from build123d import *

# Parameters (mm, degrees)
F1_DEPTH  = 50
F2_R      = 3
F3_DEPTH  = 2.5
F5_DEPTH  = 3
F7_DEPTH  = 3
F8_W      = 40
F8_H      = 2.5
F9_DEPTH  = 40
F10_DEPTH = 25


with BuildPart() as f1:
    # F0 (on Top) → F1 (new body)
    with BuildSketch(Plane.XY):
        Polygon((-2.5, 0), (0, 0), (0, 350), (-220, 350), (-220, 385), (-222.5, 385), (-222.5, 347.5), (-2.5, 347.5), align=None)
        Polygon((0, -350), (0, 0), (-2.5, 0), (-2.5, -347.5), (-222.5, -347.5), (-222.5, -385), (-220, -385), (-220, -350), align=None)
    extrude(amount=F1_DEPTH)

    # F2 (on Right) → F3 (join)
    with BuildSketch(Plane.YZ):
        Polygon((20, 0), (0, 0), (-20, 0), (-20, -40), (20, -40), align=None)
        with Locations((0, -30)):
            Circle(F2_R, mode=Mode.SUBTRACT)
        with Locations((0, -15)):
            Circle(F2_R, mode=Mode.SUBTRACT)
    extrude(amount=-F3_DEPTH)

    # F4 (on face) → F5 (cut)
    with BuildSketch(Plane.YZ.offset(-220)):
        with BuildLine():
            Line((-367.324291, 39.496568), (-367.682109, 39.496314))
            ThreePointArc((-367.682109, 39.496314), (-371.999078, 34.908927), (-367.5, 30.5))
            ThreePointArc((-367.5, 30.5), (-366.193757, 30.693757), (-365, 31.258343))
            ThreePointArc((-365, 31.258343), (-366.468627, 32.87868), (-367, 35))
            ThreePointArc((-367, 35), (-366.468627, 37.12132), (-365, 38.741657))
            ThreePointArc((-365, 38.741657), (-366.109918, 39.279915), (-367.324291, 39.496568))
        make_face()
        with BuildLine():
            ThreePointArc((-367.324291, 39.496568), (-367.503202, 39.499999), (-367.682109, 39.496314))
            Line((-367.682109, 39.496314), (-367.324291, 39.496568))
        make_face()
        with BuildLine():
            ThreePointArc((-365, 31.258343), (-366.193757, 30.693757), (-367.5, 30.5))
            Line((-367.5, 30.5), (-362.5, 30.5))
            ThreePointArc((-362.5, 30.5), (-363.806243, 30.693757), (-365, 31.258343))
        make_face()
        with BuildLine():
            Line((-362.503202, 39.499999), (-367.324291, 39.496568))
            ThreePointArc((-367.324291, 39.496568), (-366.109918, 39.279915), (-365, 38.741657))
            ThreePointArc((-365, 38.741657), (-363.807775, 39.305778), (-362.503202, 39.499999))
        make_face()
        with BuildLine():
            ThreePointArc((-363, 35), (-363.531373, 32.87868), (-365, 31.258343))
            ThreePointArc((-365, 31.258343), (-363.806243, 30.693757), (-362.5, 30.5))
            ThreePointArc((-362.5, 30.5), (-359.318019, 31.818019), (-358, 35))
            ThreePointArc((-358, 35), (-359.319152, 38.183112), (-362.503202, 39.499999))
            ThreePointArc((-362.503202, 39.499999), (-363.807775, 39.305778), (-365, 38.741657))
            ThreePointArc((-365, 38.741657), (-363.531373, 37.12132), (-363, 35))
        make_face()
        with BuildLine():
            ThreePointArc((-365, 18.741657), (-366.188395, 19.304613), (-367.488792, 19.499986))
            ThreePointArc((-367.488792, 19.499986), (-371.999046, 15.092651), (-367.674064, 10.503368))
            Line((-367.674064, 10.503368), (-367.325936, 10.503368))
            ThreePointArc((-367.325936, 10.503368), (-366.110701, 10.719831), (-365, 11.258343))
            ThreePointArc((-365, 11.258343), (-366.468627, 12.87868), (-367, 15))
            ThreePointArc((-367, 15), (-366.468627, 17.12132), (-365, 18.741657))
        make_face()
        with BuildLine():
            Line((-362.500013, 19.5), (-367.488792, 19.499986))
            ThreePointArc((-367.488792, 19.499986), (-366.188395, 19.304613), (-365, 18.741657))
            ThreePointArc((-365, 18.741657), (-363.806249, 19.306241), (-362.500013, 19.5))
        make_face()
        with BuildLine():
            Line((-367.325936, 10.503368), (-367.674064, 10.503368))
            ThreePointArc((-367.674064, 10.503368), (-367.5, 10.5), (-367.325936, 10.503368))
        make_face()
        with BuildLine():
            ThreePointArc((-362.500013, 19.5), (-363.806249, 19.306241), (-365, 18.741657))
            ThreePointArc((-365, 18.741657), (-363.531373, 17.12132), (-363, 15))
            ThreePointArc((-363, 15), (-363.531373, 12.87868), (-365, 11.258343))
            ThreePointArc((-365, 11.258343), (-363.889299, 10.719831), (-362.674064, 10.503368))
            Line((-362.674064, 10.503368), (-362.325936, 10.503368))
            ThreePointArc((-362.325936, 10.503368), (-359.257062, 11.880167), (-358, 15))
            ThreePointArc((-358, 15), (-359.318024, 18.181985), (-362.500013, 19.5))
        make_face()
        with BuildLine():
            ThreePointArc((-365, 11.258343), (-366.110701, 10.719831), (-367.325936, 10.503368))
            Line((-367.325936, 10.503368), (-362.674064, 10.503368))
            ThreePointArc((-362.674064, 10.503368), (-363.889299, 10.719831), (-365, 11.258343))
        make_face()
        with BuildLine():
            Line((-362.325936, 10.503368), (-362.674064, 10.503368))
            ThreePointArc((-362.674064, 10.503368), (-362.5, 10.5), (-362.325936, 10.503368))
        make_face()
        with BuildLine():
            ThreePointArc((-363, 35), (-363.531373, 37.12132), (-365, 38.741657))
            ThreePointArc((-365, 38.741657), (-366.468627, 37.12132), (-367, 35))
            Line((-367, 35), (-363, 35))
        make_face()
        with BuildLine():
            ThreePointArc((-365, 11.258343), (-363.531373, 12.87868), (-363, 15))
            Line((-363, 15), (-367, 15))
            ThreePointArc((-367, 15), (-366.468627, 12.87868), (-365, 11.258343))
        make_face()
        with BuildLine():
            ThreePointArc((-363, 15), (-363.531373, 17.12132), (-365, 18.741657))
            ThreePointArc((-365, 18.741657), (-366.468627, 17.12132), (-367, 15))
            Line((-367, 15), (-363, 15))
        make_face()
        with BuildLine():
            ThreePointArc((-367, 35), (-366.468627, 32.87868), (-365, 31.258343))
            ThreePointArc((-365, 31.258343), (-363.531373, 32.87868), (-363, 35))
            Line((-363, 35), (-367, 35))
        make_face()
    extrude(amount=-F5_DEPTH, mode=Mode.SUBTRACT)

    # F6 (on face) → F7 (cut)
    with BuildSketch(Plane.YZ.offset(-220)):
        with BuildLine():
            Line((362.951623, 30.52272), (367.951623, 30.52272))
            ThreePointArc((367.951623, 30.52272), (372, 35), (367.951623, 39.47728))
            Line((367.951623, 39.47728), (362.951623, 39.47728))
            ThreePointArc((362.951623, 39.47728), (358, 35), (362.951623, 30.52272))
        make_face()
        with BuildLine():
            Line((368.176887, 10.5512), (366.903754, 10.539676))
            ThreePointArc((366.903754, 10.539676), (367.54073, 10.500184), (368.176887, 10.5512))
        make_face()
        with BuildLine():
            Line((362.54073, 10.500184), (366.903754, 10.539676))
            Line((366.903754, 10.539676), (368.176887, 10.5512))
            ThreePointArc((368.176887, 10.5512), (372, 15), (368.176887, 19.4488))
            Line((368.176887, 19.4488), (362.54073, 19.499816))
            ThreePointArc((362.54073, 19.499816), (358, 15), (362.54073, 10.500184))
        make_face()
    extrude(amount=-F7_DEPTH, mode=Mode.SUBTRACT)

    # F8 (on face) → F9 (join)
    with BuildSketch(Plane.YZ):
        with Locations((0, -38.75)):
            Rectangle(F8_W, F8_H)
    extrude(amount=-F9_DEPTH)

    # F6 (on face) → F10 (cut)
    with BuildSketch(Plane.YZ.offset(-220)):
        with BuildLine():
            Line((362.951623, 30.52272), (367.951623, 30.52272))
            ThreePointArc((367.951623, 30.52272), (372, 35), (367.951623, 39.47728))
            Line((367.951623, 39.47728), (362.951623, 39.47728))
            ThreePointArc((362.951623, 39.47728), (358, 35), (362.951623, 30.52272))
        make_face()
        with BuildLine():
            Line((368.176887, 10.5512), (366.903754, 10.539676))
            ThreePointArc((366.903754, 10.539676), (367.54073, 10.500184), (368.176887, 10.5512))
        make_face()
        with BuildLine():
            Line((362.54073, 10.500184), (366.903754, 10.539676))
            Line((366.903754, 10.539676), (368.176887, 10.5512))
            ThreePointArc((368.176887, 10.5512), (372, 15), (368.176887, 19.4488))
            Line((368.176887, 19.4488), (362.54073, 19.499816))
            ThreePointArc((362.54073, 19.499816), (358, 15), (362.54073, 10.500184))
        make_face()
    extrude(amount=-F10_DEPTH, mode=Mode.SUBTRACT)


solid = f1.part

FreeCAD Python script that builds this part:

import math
import FreeCAD as App
import Part
import Sketcher
from FreeCAD import Vector
Q = App.Units.Quantity

doc = App.newDocument("Part")
body = doc.addObject("PartDesign::Body", "Body")

# Sketch on XY plane
sketch1 = doc.addObject("Sketcher::SketchObject", "Sketch")
body.addObject(sketch1)
sketch1.AttachmentSupport = (doc.XY_Plane, [""])
sketch1.MapMode = "FlatFace"
sketch1.addGeometry([
    Part.LineSegment(Vector(0, 350, 0), Vector(-220, 350, 0)),  # 0
    Part.LineSegment(Vector(-220, 350, 0), Vector(-220, 385, 0)),  # 1
    Part.LineSegment(Vector(-220, 385, 0), Vector(-222.5, 385, 0)),  # 2
    Part.LineSegment(Vector(-222.5, 385, 0), Vector(-222.5, 347.5, 0)),  # 3
    Part.LineSegment(Vector(-222.5, 347.5, 0), Vector(-2.5, 347.5, 0)),  # 4
    Part.LineSegment(Vector(-2.5, 347.5, 0), Vector(-2.5, -347.5, 0)),  # 5
    Part.LineSegment(Vector(-2.5, -347.5, 0), Vector(-222.5, -347.5, 0)),  # 6
    Part.LineSegment(Vector(-222.5, -347.5, 0), Vector(-222.5, -385, 0)),  # 7
    Part.LineSegment(Vector(-222.5, -385, 0), Vector(-220, -385, 0)),  # 8
    Part.LineSegment(Vector(-220, -385, 0), Vector(-220, -350, 0)),  # 9
    Part.LineSegment(Vector(-220, -350, 0), Vector(0, -350, 0)),  # 10
    Part.LineSegment(Vector(0, -350, 0), Vector(0, 350, 0)),  # 11
], False)
sketch1.addConstraint([
    Sketcher.Constraint("Coincident", 0, 2, 1, 1),
    Sketcher.Constraint("Coincident", 1, 2, 2, 1),
    Sketcher.Constraint("Coincident", 2, 2, 3, 1),
    Sketcher.Constraint("Coincident", 3, 2, 4, 1),
    Sketcher.Constraint("Coincident", 4, 2, 5, 1),
    Sketcher.Constraint("Coincident", 5, 2, 6, 1),
    Sketcher.Constraint("Coincident", 6, 2, 7, 1),
    Sketcher.Constraint("Coincident", 7, 2, 8, 1),
    Sketcher.Constraint("Coincident", 8, 2, 9, 1),
    Sketcher.Constraint("Coincident", 9, 2, 10, 1),
    Sketcher.Constraint("Coincident", 10, 2, 11, 1),
    Sketcher.Constraint("Coincident", 11, 2, 0, 1),
    Sketcher.Constraint("Horizontal", 0),
    Sketcher.Constraint("Vertical", 1),
    Sketcher.Constraint("Horizontal", 2),
    Sketcher.Constraint("Vertical", 3),
    Sketcher.Constraint("Horizontal", 4),
    Sketcher.Constraint("Vertical", 5),
    Sketcher.Constraint("Horizontal", 6),
    Sketcher.Constraint("Vertical", 7),
    Sketcher.Constraint("Horizontal", 8),
    Sketcher.Constraint("Vertical", 9),
    Sketcher.Constraint("Horizontal", 10),
    Sketcher.Constraint("Vertical", 11),
    Sketcher.Constraint("Symmetric", 10, 2, 11, 2, -1, 1),
    Sketcher.Constraint("Symmetric", 3, 2, 6, 2, -1),
    Sketcher.Constraint("Symmetric", 1, 2, 8, 2, -1),
    Sketcher.Constraint("Equal", 0, 4),
    Sketcher.Constraint("DistanceX", 0, 2, 0, 1, Q("220 mm")),
    Sketcher.Constraint("DistanceY", 1, 1, 1, 2, Q("35 mm")),
    Sketcher.Constraint("DistanceY", 5, 2, 5, 1, Q("695 mm")),
    Sketcher.Constraint("DistanceY", 11, 1, 11, 2, Q("700 mm")),
    Sketcher.Constraint("DistanceX", 2, 2, 2, 1, Q("2.5 mm")),
])
pad1 = doc.addObject("PartDesign::Pad", "Pad")
body.addObject(pad1)
pad1.Profile = sketch1
pad1.Length = 50

# Sketch on YZ plane
sketch2 = doc.addObject("Sketcher::SketchObject", "Sketch001")
body.addObject(sketch2)
sketch2.AttachmentSupport = (doc.YZ_Plane, [""])
sketch2.MapMode = "FlatFace"
sketch2.addGeometry([
    Part.LineSegment(Vector(20, 0, 0), Vector(-20, 0, 0)),  # 0
    Part.LineSegment(Vector(-20, 0, 0), Vector(-20, -40, 0)),  # 1
    Part.LineSegment(Vector(-20, -40, 0), Vector(20, -40, 0)),  # 2
    Part.LineSegment(Vector(20, -40, 0), Vector(20, 0, 0)),  # 3
    Part.Circle(Vector(0, -30, 0), Vector(0, 0, 1), 3),  # 4
    Part.Circle(Vector(0, -15, 0), Vector(0, 0, 1), 3),  # 5
], False)
sketch2.addConstraint([
    Sketcher.Constraint("Coincident", 0, 2, 1, 1),
    Sketcher.Constraint("Coincident", 1, 2, 2, 1),
    Sketcher.Constraint("Coincident", 2, 2, 3, 1),
    Sketcher.Constraint("Coincident", 3, 2, 0, 1),
    Sketcher.Constraint("Horizontal", 0),
    Sketcher.Constraint("Vertical", 1),
    Sketcher.Constraint("Horizontal", 2),
    Sketcher.Constraint("Vertical", 3),
    Sketcher.Constraint("Equal", 4, 5),
    Sketcher.Constraint("Symmetric", 0, 2, 3, 2, -1, 1),
    Sketcher.Constraint("PointOnObject", 4, 3, -2),
    Sketcher.Constraint("PointOnObject", 5, 3, -2),
    Sketcher.Constraint("Equal", 2, 1),
    Sketcher.Constraint("Diameter", 4, Q("6 mm")),
    Sketcher.Constraint("DistanceX", 0, 2, 0, 1, Q("40 mm")),
    Sketcher.Constraint("DistanceY", 4, 3, -1, 1, Q("30 mm")),
    Sketcher.Constraint("DistanceY", 5, 3, -1, 1, Q("15 mm")),
])
pad2 = doc.addObject("PartDesign::Pad", "Pad001")
body.addObject(pad2)
pad2.Profile = sketch2
pad2.Length = 2.5
pad2.Reversed = True

# Sketch on YZ plane
sketch3 = doc.addObject("Sketcher::SketchObject", "Sketch002")
body.addObject(sketch3)
sketch3.AttachmentSupport = (doc.YZ_Plane, [""])
sketch3.MapMode = "FlatFace"
sketch3.AttachmentOffset = App.Placement(Vector(0, 0, -220), App.Rotation())
sketch3.addGeometry([
    Part.ArcOfCircle(Part.Circle(Vector(-367.5, 35, 0), Vector(0, 0, 1), 4.5), math.radians(92), math.radians(270)),  # 0
    Part.LineSegment(Vector(-367.5, 30.5, 0), Vector(-362.5, 30.5, 0)),  # 1
    Part.ArcOfCircle(Part.Circle(Vector(-362.5, 35, 0), Vector(0, 0, 1), 4.5), math.radians(-90), math.radians(0)),  # 2
    Part.ArcOfCircle(Part.Circle(Vector(-362.5, 35, 0), Vector(0, 0, 1), 4.5), math.radians(0), math.radians(90)),  # 3
    Part.LineSegment(Vector(-362.5, 39.5, 0), Vector(-367.32, 39.5, 0)),  # 4
    Part.ArcOfCircle(Part.Circle(Vector(-367.5, 35, 0), Vector(0, 0, 1), 4.5), math.radians(87.76), math.radians(92.32)),  # 5
    Part.ArcOfCircle(Part.Circle(Vector(-367.5, 15, 0), Vector(0, 0, 1), 4.5), math.radians(-92.22), math.radians(-87.78)),  # 6
    Part.LineSegment(Vector(-367.33, 10.5, 0), Vector(-362.67, 10.5, 0)),  # 7
    Part.ArcOfCircle(Part.Circle(Vector(-362.5, 15, 0), Vector(0, 0, 1), 4.5), math.radians(-92.22), math.radians(-87.78)),  # 8
    Part.ArcOfCircle(Part.Circle(Vector(-362.5, 15, 0), Vector(0, 0, 1), 4.5), math.radians(-88), math.radians(0)),  # 9
    Part.ArcOfCircle(Part.Circle(Vector(-362.5, 15, 0), Vector(0, 0, 1), 4.5), math.radians(0), math.radians(90)),  # 10
    Part.LineSegment(Vector(-362.5, 19.5, 0), Vector(-367.49, 19.5, 0)),  # 11
    Part.ArcOfCircle(Part.Circle(Vector(-367.5, 15, 0), Vector(0, 0, 1), 4.5), math.radians(90), math.radians(268)),  # 12
], False)
sketch3.addConstraint([
    Sketcher.Constraint("Tangent", 0, 2, 1, 1),
    Sketcher.Constraint("Tangent", 1, 2, 2, 1),
    Sketcher.Constraint("Tangent", 2, 2, 3, 1),
    Sketcher.Constraint("Tangent", 3, 2, 4, 1),
    Sketcher.Constraint("Coincident", 4, 2, 5, 1),
    Sketcher.Constraint("Tangent", 5, 2, 0, 1),
    Sketcher.Constraint("Coincident", 6, 2, 7, 1),
    Sketcher.Constraint("Coincident", 7, 2, 8, 1),
    Sketcher.Constraint("Coincident", 8, 2, 9, 1),
    Sketcher.Constraint("Tangent", 9, 2, 10, 1),
    Sketcher.Constraint("Tangent", 10, 2, 11, 1),
    Sketcher.Constraint("Coincident", 11, 2, 12, 1),
    Sketcher.Constraint("Coincident", 12, 2, 6, 1),
    Sketcher.Constraint("Horizontal", 1),
    Sketcher.Constraint("Horizontal", 7),
    Sketcher.Constraint("Equal", 0, 2),
    Sketcher.Constraint("Equal", 0, 3),
    Sketcher.Constraint("Equal", 6, 8),
    Sketcher.Constraint("Equal", 2, 9),
    Sketcher.Constraint("Equal", 9, 10),
    Sketcher.Constraint("Equal", 10, 12),
    Sketcher.Constraint("Horizontal", 6, 3, 8, 3),
    Sketcher.Constraint("Horizontal", 10, 3, 12, 3),
    Sketcher.Constraint("Horizontal", 3, 3, 2, 2),
    Sketcher.Constraint("Horizontal", 7, 2, 8, 2),
    Sketcher.Constraint("Horizontal", 12, 3, 9, 2),
    Sketcher.Constraint("Horizontal", 8, 2, 12, 2),
    Sketcher.Constraint("Vertical", 0, 3, 6, 3),
    Sketcher.Constraint("Vertical", 3, 3, 8, 3),
    Sketcher.Constraint("Vertical", 8, 3, 9, 3),
    Sketcher.Constraint("Radius", 0, Q("4.5 mm")),
    Sketcher.Constraint("DistanceX", 1, 1, 1, 2, Q("5 mm")),
    Sketcher.Constraint("DistanceY", -1, 1, 0, 3, Q("35 mm")),
    Sketcher.Constraint("DistanceY", -1, 1, 9, 3, Q("14.999998 mm")),
    Sketcher.Constraint("DistanceX", 2, 2, -1, 1, Q("358 mm")),
    Sketcher.Constraint("Radius", 5, Q("4.499874 mm")),
    Sketcher.Constraint("Radius", 6, Q("4.499647 mm")),
    Sketcher.Constraint("DistanceX", 3, 2, -1, 1, Q("362.503202 mm")),
    Sketcher.Constraint("DistanceX", 5, 2, 5, 3, Q("0.182101 mm")),
    Sketcher.Constraint("Distance", 11, Q("4.988779 mm")),
    Sketcher.Constraint("DistanceX", 7, 1, 7, 2, Q("4.651872 mm")),
])
pocket1 = doc.addObject("PartDesign::Pocket", "Pocket")
body.addObject(pocket1)
pocket1.Profile = sketch3
pocket1.Length = 3

# Sketch on YZ plane
sketch4 = doc.addObject("Sketcher::SketchObject", "Sketch003")
body.addObject(sketch4)
sketch4.AttachmentSupport = (doc.YZ_Plane, [""])
sketch4.MapMode = "FlatFace"
sketch4.AttachmentOffset = App.Placement(Vector(0, 0, -220), App.Rotation())
sketch4.addGeometry([
    Part.LineSegment(Vector(362.951623, 30.52272, 0), Vector(367.951623, 30.52272, 0)),  # 0
    Part.ArcOfCircle(Part.Circle(Vector(367.5, 35, 0), Vector(0, 0, 1), 4.5), math.radians(-84.240061), math.radians(84.240061)),  # 1
    Part.LineSegment(Vector(367.951623, 39.47728, 0), Vector(362.951623, 39.47728, 0)),  # 2
    Part.ArcOfCircle(Part.Circle(Vector(362.5, 35, 0), Vector(0, 0, 1), 4.5), math.radians(84.24006), math.radians(275.75994)),  # 3
    Part.ArcOfCircle(Part.Circle(Vector(367.5, 14.99995, 0), Vector(0, 0, 1), 4.499951), math.radians(-97.61411), math.radians(-81.348671)),  # 4
    Part.ArcOfCircle(Part.Circle(Vector(367.5, 15, 0), Vector(0, 0, 1), 4.5), math.radians(-81.348775), math.radians(81.348775)),  # 5
    Part.LineSegment(Vector(368.176887, 19.4488, 0), Vector(362.54073, 19.499816, 0)),  # 6
    Part.ArcOfCircle(Part.Circle(Vector(362.5, 15, 0), Vector(0, 0, 1), 4.5), math.radians(89.481407), math.radians(270.518593)),  # 7
    Part.LineSegment(Vector(362.54073, 10.500184, 0), Vector(366.903754, 10.539676, 0)),  # 8
], False)
sketch4.addConstraint([
    Sketcher.Constraint("Coincident", 0, 2, 1, 1),
    Sketcher.Constraint("Coincident", 1, 2, 2, 1),
    Sketcher.Constraint("Coincident", 2, 2, 3, 1),
    Sketcher.Constraint("Coincident", 3, 2, 0, 1),
    Sketcher.Constraint("Coincident", 4, 2, 5, 1),
    Sketcher.Constraint("Coincident", 5, 2, 6, 1),
    Sketcher.Constraint("Coincident", 6, 2, 7, 1),
    Sketcher.Constraint("Coincident", 7, 2, 8, 1),
    Sketcher.Constraint("Coincident", 8, 2, 4, 1),
    Sketcher.Constraint("Horizontal", 0),
    Sketcher.Constraint("Horizontal", 2),
    Sketcher.Constraint("Radius", 1, Q("4.5 mm")),
    Sketcher.Constraint("Radius", 3, Q("4.5 mm")),
    Sketcher.Constraint("Radius", 5, Q("4.5 mm")),
    Sketcher.Constraint("Radius", 7, Q("4.5 mm")),
    Sketcher.Constraint("DistanceX", 0, 1, 0, 2, Q("5 mm")),
    Sketcher.Constraint("DistanceX", 2, 2, 2, 1, Q("5 mm")),
    Sketcher.Constraint("DistanceY", -1, 1, 1, 3, Q("35 mm")),
    Sketcher.Constraint("DistanceY", -1, 1, 5, 3, Q("15 mm")),
    Sketcher.Constraint("DistanceY", -1, 1, 7, 3, Q("15 mm")),
    Sketcher.Constraint("DistanceX", 3, 3, 4, 3, Q("5 mm")),
    Sketcher.Constraint("DistanceX", 3, 3, 5, 3, Q("5 mm")),
    Sketcher.Constraint("DistanceX", 7, 3, 4, 3, Q("4.999999 mm")),
    Sketcher.Constraint("DistanceX", 2, 2, 0, 2, Q("5 mm")),
    Sketcher.Constraint("DistanceX", -1, 1, 1, 3, Q("367.5 mm")),
    Sketcher.Constraint("Radius", 4, Q("4.499951 mm")),
    Sketcher.Constraint("DistanceY", -1, 1, 4, 2, Q("10.5512 mm")),
    Sketcher.Constraint("DistanceY", -1, 1, 5, 2, Q("19.4488 mm")),
    Sketcher.Constraint("DistanceY", -1, 1, 0, 2, Q("30.52272 mm")),
    Sketcher.Constraint("DistanceX", -1, 1, 6, 2, Q("362.54073 mm")),
    Sketcher.Constraint("DistanceX", -1, 1, 7, 2, Q("362.54073 mm")),
    Sketcher.Constraint("Distance", 8, Q("4.363203 mm")),
])
pocket2 = doc.addObject("PartDesign::Pocket", "Pocket001")
body.addObject(pocket2)
pocket2.Profile = sketch4
pocket2.Length = 3

# Sketch on YZ plane
sketch5 = doc.addObject("Sketcher::SketchObject", "Sketch004")
body.addObject(sketch5)
sketch5.AttachmentSupport = (doc.YZ_Plane, [""])
sketch5.MapMode = "FlatFace"
sketch5.addGeometry([
    Part.LineSegment(Vector(-20, -37.5, 0), Vector(-20, -40, 0)),
    Part.LineSegment(Vector(-20, -40, 0), Vector(20, -40, 0)),
    Part.LineSegment(Vector(20, -40, 0), Vector(20, -37.5, 0)),
    Part.LineSegment(Vector(20, -37.5, 0), Vector(-20, -37.5, 0)),
], False)
sketch5.addConstraint([
    Sketcher.Constraint("Coincident", 0, 2, 1, 1),
    Sketcher.Constraint("Coincident", 1, 2, 2, 1),
    Sketcher.Constraint("Coincident", 2, 2, 3, 1),
    Sketcher.Constraint("Coincident", 3, 2, 0, 1),
    Sketcher.Constraint("Vertical", 0),
    Sketcher.Constraint("Horizontal", 1),
    Sketcher.Constraint("Vertical", 2),
    Sketcher.Constraint("Horizontal", 3),
    Sketcher.Constraint("DistanceX", 1, 1, 1, 2, Q("40 mm")),
    Sketcher.Constraint("DistanceY", 0, 2, 0, 1, Q("2.5 mm")),
    Sketcher.Constraint("DistanceX", 0, 2, -1, 1, Q("20 mm")),
    Sketcher.Constraint("DistanceY", 0, 2, -1, 1, Q("40 mm")),
])
pad3 = doc.addObject("PartDesign::Pad", "Pad002")
body.addObject(pad3)
pad3.Profile = sketch5
pad3.Length = 40
pad3.Reversed = True

# Sketch on YZ plane
sketch6 = doc.addObject("Sketcher::SketchObject", "Sketch005")
body.addObject(sketch6)
sketch6.AttachmentSupport = (doc.YZ_Plane, [""])
sketch6.MapMode = "FlatFace"
sketch6.AttachmentOffset = App.Placement(Vector(0, 0, -220), App.Rotation())
sketch6.addGeometry([
    Part.LineSegment(Vector(362.951623, 30.52272, 0), Vector(367.951623, 30.52272, 0)),  # 0
    Part.ArcOfCircle(Part.Circle(Vector(367.5, 35, 0), Vector(0, 0, 1), 4.5), math.radians(-84.240061), math.radians(84.240061)),  # 1
    Part.LineSegment(Vector(367.951623, 39.47728, 0), Vector(362.951623, 39.47728, 0)),  # 2
    Part.ArcOfCircle(Part.Circle(Vector(362.5, 35, 0), Vector(0, 0, 1), 4.5), math.radians(84.24006), math.radians(275.75994)),  # 3
    Part.ArcOfCircle(Part.Circle(Vector(367.5, 14.99995, 0), Vector(0, 0, 1), 4.499951), math.radians(-97.61411), math.radians(-81.348671)),  # 4
    Part.ArcOfCircle(Part.Circle(Vector(367.5, 15, 0), Vector(0, 0, 1), 4.5), math.radians(-81.348775), math.radians(81.348775)),  # 5
    Part.LineSegment(Vector(368.176887, 19.4488, 0), Vector(362.54073, 19.499816, 0)),  # 6
    Part.ArcOfCircle(Part.Circle(Vector(362.5, 15, 0), Vector(0, 0, 1), 4.5), math.radians(89.481407), math.radians(270.518593)),  # 7
    Part.LineSegment(Vector(362.54073, 10.500184, 0), Vector(366.903754, 10.539676, 0)),  # 8
], False)
sketch6.addConstraint([
    Sketcher.Constraint("Coincident", 0, 2, 1, 1),
    Sketcher.Constraint("Coincident", 1, 2, 2, 1),
    Sketcher.Constraint("Coincident", 2, 2, 3, 1),
    Sketcher.Constraint("Coincident", 3, 2, 0, 1),
    Sketcher.Constraint("Coincident", 4, 2, 5, 1),
    Sketcher.Constraint("Coincident", 5, 2, 6, 1),
    Sketcher.Constraint("Coincident", 6, 2, 7, 1),
    Sketcher.Constraint("Coincident", 7, 2, 8, 1),
    Sketcher.Constraint("Coincident", 8, 2, 4, 1),
    Sketcher.Constraint("Horizontal", 0),
    Sketcher.Constraint("Horizontal", 2),
    Sketcher.Constraint("Radius", 1, Q("4.5 mm")),
    Sketcher.Constraint("Radius", 3, Q("4.5 mm")),
    Sketcher.Constraint("Radius", 5, Q("4.5 mm")),
    Sketcher.Constraint("Radius", 7, Q("4.5 mm")),
    Sketcher.Constraint("DistanceX", 0, 1, 0, 2, Q("5 mm")),
    Sketcher.Constraint("DistanceX", 2, 2, 2, 1, Q("5 mm")),
    Sketcher.Constraint("DistanceY", -1, 1, 1, 3, Q("35 mm")),
    Sketcher.Constraint("DistanceY", -1, 1, 5, 3, Q("15 mm")),
    Sketcher.Constraint("DistanceY", -1, 1, 7, 3, Q("15 mm")),
    Sketcher.Constraint("DistanceX", 3, 3, 4, 3, Q("5 mm")),
    Sketcher.Constraint("DistanceX", 3, 3, 5, 3, Q("5 mm")),
    Sketcher.Constraint("DistanceX", 7, 3, 4, 3, Q("4.999999 mm")),
    Sketcher.Constraint("DistanceX", 2, 2, 0, 2, Q("5 mm")),
    Sketcher.Constraint("DistanceX", -1, 1, 1, 3, Q("367.5 mm")),
    Sketcher.Constraint("Radius", 4, Q("4.499951 mm")),
    Sketcher.Constraint("DistanceY", -1, 1, 4, 2, Q("10.5512 mm")),
    Sketcher.Constraint("DistanceY", -1, 1, 5, 2, Q("19.4488 mm")),
    Sketcher.Constraint("DistanceY", -1, 1, 0, 2, Q("30.52272 mm")),
    Sketcher.Constraint("DistanceX", -1, 1, 6, 2, Q("362.54073 mm")),
    Sketcher.Constraint("DistanceX", -1, 1, 7, 2, Q("362.54073 mm")),
    Sketcher.Constraint("Distance", 8, Q("4.363203 mm")),
])
pocket3 = doc.addObject("PartDesign::Pocket", "Pocket002")
body.addObject(pocket3)
pocket3.Profile = sketch6
pocket3.Length = 25

doc.recompute()
